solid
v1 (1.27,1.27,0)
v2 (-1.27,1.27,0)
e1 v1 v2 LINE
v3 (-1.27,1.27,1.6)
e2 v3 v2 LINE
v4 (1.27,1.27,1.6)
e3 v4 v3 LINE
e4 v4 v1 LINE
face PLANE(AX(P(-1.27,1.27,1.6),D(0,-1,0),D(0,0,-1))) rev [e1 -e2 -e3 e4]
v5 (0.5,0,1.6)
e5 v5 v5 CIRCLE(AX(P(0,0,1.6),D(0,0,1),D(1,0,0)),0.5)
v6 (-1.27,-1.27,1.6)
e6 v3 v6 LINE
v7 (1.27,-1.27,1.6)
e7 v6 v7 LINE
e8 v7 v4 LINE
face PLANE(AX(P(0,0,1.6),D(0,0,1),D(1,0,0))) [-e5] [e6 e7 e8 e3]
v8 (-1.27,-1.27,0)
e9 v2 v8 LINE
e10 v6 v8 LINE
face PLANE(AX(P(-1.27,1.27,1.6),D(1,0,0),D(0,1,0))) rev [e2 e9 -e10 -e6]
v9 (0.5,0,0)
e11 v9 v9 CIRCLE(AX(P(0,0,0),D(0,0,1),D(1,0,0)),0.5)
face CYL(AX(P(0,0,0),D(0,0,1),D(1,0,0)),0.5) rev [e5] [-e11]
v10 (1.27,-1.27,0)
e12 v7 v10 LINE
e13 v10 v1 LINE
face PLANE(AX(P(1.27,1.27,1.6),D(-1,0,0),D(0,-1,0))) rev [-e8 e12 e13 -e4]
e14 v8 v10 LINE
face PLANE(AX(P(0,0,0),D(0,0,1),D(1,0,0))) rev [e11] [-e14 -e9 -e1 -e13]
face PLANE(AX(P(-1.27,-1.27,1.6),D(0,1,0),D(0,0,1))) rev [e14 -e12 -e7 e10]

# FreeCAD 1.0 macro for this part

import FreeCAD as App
import Part
import Sketcher
from FreeCAD import Vector


def add_polygon(sketch, points):
    """Adds a closed chain of lines whose ends are joined by coincident constraints."""
    first, n = sketch.GeometryCount, len(points)
    for a, b in zip(points, points[1:] + points[:1]):
        sketch.addGeometry(Part.LineSegment(App.Vector(*a, 0), App.Vector(*b, 0)), False)
    for i in range(n):
        sketch.addConstraint(Sketcher.Constraint("Coincident", first + i, 2, first + (i + 1) % n, 1))

doc = App.newDocument("Part")
body = doc.addObject("PartDesign::Body", "Body")

sketch1 = body.newObject("Sketcher::SketchObject", "Sketch")
sketch1.AttachmentSupport = (doc.getObject("XY_Plane"), [""])
sketch1.MapMode = "FlatFace"
add_polygon(sketch1, [(-1.3, 1.3), (-1.3, -1.3), (1.3, -1.3), (1.3, 1.3)])
sketch1.addConstraint([
    Sketcher.Constraint("Vertical", 0),
    Sketcher.Constraint("Horizontal", 1),
    Sketcher.Constraint("Vertical", 2),
    Sketcher.Constraint("Horizontal", 3),
    Sketcher.Constraint("Symmetric", 0, 2, 2, 2, -1, 1),
    Sketcher.Constraint("Equal", 3, 0),
    Sketcher.Constraint("DistanceX", 1, 1, 1, 2, 2.54),
])
pad1 = body.newObject("PartDesign::Pad", "Pad")
pad1.Profile = sketch1
pad1.Length = 1.6

sketch2 = body.newObject("Sketcher::SketchObject", "Sketch001")
sketch2.AttachmentSupport = (doc.getObject("XY_Plane"), [""])
sketch2.MapMode = "FlatFace"
sketch2.AttachmentOffset = App.Placement(Vector(0, 0, 1.6), App.Rotation())
sketch2.addGeometry(Part.Circle(Vector(0, 0, 0), Vector(0, 0, 1), 0.5), False)
sketch2.addConstraint([
    Sketcher.Constraint("Coincident", 0, 3, -1, 1),
    Sketcher.Constraint("Diameter", 0, 1.0),
])
pocket1 = body.newObject("PartDesign::Pocket", "Pocket")
pocket1.Profile = sketch2
pocket1.Type = "ThroughAll"

doc.recompute()
